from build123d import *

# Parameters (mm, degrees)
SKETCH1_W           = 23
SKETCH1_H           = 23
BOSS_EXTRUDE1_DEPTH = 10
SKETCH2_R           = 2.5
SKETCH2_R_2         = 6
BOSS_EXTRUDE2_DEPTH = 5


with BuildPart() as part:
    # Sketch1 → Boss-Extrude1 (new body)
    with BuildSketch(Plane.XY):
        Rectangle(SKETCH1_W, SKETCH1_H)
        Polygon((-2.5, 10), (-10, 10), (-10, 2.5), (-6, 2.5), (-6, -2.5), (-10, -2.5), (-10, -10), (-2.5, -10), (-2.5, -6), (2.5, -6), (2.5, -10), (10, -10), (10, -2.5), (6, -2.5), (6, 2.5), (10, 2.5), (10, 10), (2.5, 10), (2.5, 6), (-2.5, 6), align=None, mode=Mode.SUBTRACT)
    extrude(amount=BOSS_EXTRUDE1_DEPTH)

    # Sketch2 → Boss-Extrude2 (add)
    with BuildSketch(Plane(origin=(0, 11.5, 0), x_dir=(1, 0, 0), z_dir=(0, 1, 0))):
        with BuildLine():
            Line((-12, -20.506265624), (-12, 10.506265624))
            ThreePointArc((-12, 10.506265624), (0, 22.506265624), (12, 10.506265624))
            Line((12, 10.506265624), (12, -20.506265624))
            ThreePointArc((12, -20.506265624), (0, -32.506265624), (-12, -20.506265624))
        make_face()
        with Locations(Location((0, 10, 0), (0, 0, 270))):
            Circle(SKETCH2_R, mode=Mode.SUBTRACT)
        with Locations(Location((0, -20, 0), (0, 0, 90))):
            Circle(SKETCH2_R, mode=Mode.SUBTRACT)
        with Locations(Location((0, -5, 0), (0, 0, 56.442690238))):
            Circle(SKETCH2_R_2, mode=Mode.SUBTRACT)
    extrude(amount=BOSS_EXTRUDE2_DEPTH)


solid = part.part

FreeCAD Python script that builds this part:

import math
import FreeCAD as App
import Part
import Sketcher
from FreeCAD import Vector


def add_polygon(sketch, points):
    """Adds a closed chain of lines whose ends are joined by coincident constraints."""
    first, n = sketch.GeometryCount, len(points)
    for a, b in zip(points, points[1:] + points[:1]):
        sketch.addGeometry(Part.LineSegment(App.Vector(*a, 0), App.Vector(*b, 0)), False)
    for i in range(n):
        sketch.addConstraint(Sketcher.Constraint("Coincident", first + i, 2, first + (i + 1) % n, 1))

doc = App.newDocument("Part")
body = doc.addObject("PartDesign::Body", "Body")

sketch1 = body.newObject("Sketcher::SketchObject", "Sketch")
sketch1.AttachmentSupport = (doc.getObject("XY_Plane"), [""])
sketch1.MapMode = "FlatFace"
add_polygon(sketch1, [(-11.5, 11.5), (-11.5, -11.5), (11.5, -11.5), (11.5, 11.5)])
add_polygon(sketch1, [(-10, 10), (-2.5, 10), (-2.5, 6), (2.5, 6), (2.5, 10), (10, 10), (10, 2.5), (6, 2.5), (6, -2.5), (10, -2.5), (10, -10), (2.5, -10), (2.5, -6), (-2.5, -6), (-2.5, -10), (-10, -10), (-10, -2.5), (-6, -2.5), (-6, 2.5), (-10, 2.5)])
sketch1.addConstraint([
    Sketcher.Constraint("Vertical", 0),
    Sketcher.Constraint("Horizontal", 1),
    Sketcher.Constraint("Vertical", 2),
    Sketcher.Constraint("Horizontal", 3),
    Sketcher.Constraint("Horizontal", 4),
    Sketcher.Constraint("Vertical", 5),
    Sketcher.Constraint("Horizontal", 6),
    Sketcher.Constraint("Vertical", 7),
    Sketcher.Constraint("Horizontal", 8),
    Sketcher.Constraint("Vertical", 9),
    Sketcher.Constraint("Horizontal", 10),
    Sketcher.Constraint("Vertical", 11),
    Sketcher.Constraint("Horizontal", 12),
    Sketcher.Constraint("Vertical", 13),
    Sketcher.Constraint("Horizontal", 14),
    Sketcher.Constraint("Vertical", 15),
    Sketcher.Constraint("Horizontal", 16),
    Sketcher.Constraint("Vertical", 17),
    Sketcher.Constraint("Horizontal", 18),
    Sketcher.Constraint("Vertical", 19),
    Sketcher.Constraint("Horizontal", 20),
    Sketcher.Constraint("Vertical", 21),
    Sketcher.Constraint("Horizontal", 22),
    Sketcher.Constraint("Vertical", 23),
    Sketcher.Constraint("Symmetric", 0, 2, 2, 2, -1, 1),
    Sketcher.Constraint("Symmetric", 4, 2, 14, 2, -1, 1),
    Sketcher.Constraint("Symmetric", 6, 2, 16, 2, -1, 1),
    Sketcher.Constraint("Symmetric", 8, 2, 18, 2, -1, 1),
    Sketcher.Constraint("Symmetric", 10, 2, 20, 2, -1, 1),
    Sketcher.Constraint("Symmetric", 12, 2, 22, 2, -1, 1),
    Sketcher.Constraint("Symmetric", 4, 2, 7, 2, -2),
    Sketcher.Constraint("Symmetric", 12, 2, 19, 2, -2),
    Sketcher.Constraint("Equal", 3, 0),
    Sketcher.Constraint("Equal", 22, 5),
    Sketcher.Constraint("Equal", 18, 9),
    Sketcher.Constraint("Equal", 16, 11),
    Sketcher.Constraint("DistanceX", 1, 1, 1, 2, 23.0),
    Sketcher.Constraint("DistanceX", 6, 1, 6, 2, 5.0),
    Sketcher.Constraint("DistanceX", 10, 2, 10, 1, 4.0),
    Sketcher.Constraint("DistanceX", 4, 1, 4, 2, 7.5),
])
pad1 = body.newObject("PartDesign::Pad", "Pad")
pad1.Profile = sketch1
pad1.Length = 10

sketch2 = body.newObject("Sketcher::SketchObject", "Sketch001")
sketch2.AttachmentSupport = (doc.getObject("XZ_Plane"), [""])
sketch2.MapMode = "FlatFace"
sketch2.AttachmentOffset = App.Placement(Vector(0, 0, -11.5), App.Rotation())
sketch2.addGeometry([
    Part.LineSegment(Vector(-12, -10.506266, 0), Vector(-12, 20.506266, 0)),
    Part.ArcOfCircle(Part.Circle(Vector(0, 20.506266, 0), Vector(0, 0, 1), 12), math.radians(0), math.radians(180)),
    Part.LineSegment(Vector(12, 20.506266, 0), Vector(12, -10.506266, 0)),
    Part.ArcOfCircle(Part.Circle(Vector(0, -10.506266, 0), Vector(0, 0, 1), 12), math.radians(180), math.radians(360)),
    Part.Circle(Vector(0, 20, 0), Vector(0, 0, 1), 2.5),
    Part.Circle(Vector(0, 5, 0), Vector(0, 0, 1), 6),
    Part.Circle(Vector(0, -10, 0), Vector(0, 0, 1), 2.5),
], False)
sketch2.addConstraint([
    Sketcher.Constraint("Tangent", 0, 2, 1, 2),
    Sketcher.Constraint("Tangent", 1, 1, 2, 1),
    Sketcher.Constraint("Tangent", 2, 2, 3, 2),
    Sketcher.Constraint("Tangent", 3, 1, 0, 1),
    Sketcher.Constraint("Vertical", 0),
    Sketcher.Constraint("Vertical", 2),
    Sketcher.Constraint("Equal", 4, 6),
    Sketcher.Constraint("PointOnObject", 1, 3, -2),
    Sketcher.Constraint("PointOnObject", 4, 3, -2),
    Sketcher.Constraint("PointOnObject", 5, 3, -2),
    Sketcher.Constraint("PointOnObject", 6, 3, -2),
    Sketcher.Constraint("Diameter", 4, 5.0),
    Sketcher.Constraint("Diameter", 5, 12.0),
    Sketcher.Constraint("Radius", 1, 12.0),
    Sketcher.Constraint("DistanceY", -1, 1, 4, 3, 20.0),
    Sketcher.Constraint("DistanceY", -1, 1, 5, 3, 5.0),
    Sketcher.Constraint("DistanceY", 6, 3, -1, 1, 10.0),
    Sketcher.Constraint("DistanceY", 0, 1, 0, 2, 31.012531),
    Sketcher.Constraint("DistanceY", -1, 1, 1, 3, 20.506266),
])
pad2 = body.newObject("PartDesign::Pad", "Pad001")
pad2.Profile = sketch2
pad2.Length = 5
pad2.Reversed = True

doc.recompute()
